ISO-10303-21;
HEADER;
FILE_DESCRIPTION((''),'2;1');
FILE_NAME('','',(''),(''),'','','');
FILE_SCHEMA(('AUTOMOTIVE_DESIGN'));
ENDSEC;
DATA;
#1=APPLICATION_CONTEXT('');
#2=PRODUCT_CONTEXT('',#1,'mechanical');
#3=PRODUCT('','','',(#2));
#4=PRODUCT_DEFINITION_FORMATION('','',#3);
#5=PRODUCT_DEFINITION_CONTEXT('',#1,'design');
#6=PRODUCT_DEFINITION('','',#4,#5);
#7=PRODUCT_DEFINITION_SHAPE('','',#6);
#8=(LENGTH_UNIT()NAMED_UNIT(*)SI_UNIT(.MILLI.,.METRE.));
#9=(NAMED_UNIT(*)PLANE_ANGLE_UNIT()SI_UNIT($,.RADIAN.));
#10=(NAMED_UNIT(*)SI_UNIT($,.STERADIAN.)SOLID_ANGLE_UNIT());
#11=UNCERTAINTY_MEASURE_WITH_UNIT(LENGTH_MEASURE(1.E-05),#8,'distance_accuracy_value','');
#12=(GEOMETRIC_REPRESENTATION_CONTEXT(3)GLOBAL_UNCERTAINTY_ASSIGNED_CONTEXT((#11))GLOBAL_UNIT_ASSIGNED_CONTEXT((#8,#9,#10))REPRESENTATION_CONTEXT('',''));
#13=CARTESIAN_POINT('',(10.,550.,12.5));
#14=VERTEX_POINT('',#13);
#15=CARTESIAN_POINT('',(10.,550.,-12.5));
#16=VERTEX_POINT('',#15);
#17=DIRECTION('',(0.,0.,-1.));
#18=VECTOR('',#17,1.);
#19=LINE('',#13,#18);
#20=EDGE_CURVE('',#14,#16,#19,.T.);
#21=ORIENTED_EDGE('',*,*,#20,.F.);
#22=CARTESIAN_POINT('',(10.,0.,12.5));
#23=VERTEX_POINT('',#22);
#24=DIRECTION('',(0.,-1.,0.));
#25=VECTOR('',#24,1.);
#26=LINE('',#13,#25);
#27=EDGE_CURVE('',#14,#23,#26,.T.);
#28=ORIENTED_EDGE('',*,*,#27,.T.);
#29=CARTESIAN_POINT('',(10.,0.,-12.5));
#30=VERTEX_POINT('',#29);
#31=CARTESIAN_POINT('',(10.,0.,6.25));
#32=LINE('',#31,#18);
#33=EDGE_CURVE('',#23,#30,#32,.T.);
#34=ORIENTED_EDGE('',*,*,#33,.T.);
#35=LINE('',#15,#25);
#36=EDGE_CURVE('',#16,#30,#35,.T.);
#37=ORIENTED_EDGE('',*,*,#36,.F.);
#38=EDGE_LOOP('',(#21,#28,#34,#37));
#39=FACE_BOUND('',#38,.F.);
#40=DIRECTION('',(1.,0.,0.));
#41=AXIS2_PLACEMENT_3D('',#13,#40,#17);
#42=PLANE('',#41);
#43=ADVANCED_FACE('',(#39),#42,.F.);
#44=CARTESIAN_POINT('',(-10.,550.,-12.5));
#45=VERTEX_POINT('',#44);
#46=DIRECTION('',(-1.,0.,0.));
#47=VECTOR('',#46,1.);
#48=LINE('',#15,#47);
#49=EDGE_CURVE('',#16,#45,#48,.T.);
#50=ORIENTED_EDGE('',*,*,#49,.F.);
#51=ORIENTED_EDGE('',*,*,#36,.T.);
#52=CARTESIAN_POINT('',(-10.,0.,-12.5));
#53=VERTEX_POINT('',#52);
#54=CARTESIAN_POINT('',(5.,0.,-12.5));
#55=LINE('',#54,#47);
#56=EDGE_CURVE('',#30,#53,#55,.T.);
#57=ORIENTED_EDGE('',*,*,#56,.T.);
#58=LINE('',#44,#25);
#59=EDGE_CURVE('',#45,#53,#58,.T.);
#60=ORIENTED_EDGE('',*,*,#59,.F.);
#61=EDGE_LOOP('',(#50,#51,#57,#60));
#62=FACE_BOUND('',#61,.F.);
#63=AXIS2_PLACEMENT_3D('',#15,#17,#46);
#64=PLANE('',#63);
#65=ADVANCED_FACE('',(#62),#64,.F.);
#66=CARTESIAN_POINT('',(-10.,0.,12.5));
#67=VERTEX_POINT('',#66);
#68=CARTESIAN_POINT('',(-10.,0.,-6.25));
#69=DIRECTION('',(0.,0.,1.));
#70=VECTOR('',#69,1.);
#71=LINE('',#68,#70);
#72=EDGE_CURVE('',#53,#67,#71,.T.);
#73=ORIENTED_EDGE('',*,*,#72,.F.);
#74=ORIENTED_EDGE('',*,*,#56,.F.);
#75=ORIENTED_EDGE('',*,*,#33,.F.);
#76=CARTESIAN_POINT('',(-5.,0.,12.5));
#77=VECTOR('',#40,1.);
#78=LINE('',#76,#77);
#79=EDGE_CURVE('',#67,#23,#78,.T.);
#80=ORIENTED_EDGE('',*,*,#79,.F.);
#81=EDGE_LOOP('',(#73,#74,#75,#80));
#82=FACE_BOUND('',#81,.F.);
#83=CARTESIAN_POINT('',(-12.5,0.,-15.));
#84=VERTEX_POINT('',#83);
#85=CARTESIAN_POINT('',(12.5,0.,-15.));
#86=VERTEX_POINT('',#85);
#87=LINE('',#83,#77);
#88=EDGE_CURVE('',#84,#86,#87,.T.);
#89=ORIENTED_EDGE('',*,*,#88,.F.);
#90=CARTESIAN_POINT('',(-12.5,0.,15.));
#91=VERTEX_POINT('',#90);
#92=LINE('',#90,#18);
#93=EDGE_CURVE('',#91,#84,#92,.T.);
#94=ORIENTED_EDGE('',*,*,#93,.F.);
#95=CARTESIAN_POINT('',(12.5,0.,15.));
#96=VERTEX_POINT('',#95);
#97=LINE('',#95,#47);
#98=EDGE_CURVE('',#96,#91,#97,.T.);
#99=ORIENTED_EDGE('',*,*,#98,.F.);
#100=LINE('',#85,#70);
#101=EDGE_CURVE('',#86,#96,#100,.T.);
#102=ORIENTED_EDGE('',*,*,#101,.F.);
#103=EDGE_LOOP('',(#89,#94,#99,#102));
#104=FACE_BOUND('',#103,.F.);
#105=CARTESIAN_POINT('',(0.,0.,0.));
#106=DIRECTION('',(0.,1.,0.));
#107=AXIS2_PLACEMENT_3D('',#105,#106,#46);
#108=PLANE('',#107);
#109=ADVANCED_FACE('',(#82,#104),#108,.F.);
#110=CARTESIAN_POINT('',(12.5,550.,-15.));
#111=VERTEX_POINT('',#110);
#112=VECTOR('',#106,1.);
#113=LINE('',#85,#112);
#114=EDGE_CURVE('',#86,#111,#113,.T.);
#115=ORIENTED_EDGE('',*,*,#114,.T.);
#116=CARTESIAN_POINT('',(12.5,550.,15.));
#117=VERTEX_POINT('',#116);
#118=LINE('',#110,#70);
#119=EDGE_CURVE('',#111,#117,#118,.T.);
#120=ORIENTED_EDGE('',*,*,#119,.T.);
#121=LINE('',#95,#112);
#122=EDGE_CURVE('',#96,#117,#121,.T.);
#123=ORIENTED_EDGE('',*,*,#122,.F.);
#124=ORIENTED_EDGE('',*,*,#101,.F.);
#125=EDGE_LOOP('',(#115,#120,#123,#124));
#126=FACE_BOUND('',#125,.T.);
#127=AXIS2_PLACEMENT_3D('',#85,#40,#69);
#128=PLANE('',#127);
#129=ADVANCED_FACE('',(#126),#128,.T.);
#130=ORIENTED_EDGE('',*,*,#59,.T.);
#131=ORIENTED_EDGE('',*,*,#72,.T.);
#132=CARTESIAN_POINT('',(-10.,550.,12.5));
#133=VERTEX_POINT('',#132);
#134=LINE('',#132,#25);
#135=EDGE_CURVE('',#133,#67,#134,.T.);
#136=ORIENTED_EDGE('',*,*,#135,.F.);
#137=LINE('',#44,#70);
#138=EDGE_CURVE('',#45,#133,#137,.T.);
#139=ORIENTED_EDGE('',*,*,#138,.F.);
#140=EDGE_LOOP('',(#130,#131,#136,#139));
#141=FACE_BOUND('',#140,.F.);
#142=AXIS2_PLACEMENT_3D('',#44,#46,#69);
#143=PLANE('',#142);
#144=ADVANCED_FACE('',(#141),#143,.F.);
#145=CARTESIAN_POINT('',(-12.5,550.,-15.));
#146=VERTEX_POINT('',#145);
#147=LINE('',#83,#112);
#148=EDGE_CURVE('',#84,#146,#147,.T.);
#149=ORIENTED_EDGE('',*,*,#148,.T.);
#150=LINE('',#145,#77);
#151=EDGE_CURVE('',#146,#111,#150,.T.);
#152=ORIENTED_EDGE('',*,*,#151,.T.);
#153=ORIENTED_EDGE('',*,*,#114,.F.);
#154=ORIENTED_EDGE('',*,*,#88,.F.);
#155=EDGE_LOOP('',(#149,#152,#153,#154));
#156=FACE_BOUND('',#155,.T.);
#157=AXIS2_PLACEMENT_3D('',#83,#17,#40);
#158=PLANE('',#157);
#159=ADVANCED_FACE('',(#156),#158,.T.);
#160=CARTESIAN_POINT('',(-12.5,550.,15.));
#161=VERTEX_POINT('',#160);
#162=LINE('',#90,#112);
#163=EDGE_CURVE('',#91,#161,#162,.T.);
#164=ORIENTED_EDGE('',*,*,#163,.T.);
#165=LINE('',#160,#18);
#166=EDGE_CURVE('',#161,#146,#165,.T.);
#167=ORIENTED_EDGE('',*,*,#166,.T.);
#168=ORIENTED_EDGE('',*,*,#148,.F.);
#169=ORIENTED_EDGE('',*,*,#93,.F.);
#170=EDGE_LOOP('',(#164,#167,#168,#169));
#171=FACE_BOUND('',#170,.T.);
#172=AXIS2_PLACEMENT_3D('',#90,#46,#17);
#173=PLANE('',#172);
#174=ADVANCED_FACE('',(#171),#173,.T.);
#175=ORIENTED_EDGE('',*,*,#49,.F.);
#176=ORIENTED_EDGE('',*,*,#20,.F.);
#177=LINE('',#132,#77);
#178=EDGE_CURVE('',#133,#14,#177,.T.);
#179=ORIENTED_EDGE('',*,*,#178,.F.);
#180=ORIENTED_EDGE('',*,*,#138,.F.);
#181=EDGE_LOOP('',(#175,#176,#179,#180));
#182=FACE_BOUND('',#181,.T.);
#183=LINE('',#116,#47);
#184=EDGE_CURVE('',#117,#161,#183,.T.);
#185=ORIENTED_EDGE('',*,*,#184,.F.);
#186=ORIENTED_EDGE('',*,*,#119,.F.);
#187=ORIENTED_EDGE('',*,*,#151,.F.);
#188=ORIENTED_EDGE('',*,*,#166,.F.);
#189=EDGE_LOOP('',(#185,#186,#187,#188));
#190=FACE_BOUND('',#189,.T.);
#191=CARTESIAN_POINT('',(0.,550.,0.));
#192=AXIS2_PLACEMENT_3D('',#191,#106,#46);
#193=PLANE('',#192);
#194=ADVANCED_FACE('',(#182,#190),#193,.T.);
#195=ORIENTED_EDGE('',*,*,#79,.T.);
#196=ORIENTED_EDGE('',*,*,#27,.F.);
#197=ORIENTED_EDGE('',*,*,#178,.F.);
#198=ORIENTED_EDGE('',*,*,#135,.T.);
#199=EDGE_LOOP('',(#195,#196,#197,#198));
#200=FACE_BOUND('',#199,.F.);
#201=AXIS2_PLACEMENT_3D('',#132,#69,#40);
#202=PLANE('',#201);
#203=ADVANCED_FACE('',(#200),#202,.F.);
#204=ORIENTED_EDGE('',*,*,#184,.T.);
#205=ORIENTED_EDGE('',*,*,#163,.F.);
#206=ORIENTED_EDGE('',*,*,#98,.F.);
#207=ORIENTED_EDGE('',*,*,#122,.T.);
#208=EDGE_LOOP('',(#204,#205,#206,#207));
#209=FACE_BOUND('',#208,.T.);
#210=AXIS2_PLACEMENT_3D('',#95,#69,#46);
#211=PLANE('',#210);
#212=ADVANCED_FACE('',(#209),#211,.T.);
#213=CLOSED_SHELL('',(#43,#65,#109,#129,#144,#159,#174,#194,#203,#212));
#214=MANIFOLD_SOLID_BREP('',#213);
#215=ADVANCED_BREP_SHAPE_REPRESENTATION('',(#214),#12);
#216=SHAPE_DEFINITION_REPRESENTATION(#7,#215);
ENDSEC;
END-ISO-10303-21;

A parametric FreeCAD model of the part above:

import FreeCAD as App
import Part
import Sketcher
from FreeCAD import Vector

doc = App.newDocument("Part")
body = doc.addObject("PartDesign::Body", "Body")

sketch1 = doc.addObject("Sketcher::SketchObject", "Sketch")
body.addObject(sketch1)
sketch1.AttachmentSupport = (doc.XZ_Plane, [""])
sketch1.MapMode = "FlatFace"
sketch1.addGeometry([
    Part.LineSegment(Vector(-12.5, 15, 0), Vector(12.5, 15, 0)),
    Part.LineSegment(Vector(12.5, 15, 0), Vector(12.5, -15, 0)),
    Part.LineSegment(Vector(12.5, -15, 0), Vector(-12.5, -15, 0)),
    Part.LineSegment(Vector(-12.5, -15, 0), Vector(-12.5, 15, 0)),
], False)
sketch1.addConstraint([
    Sketcher.Constraint("Coincident", 0, 2, 1, 1),
    Sketcher.Constraint("Coincident", 1, 2, 2, 1),
    Sketcher.Constraint("Coincident", 2, 2, 3, 1),
    Sketcher.Constraint("Coincident", 3, 2, 0, 1),
    Sketcher.Constraint("Horizontal", 0),
    Sketcher.Constraint("Vertical", 1),
    Sketcher.Constraint("Horizontal", 2),
    Sketcher.Constraint("Vertical", 3),
    Sketcher.Constraint("Symmetric", 0, 2, 2, 2, -1, 1),
    Sketcher.Constraint("DistanceX", 0, 1, 0, 2, 25.0),
    Sketcher.Constraint("DistanceY", 1, 2, 1, 1, 30.0),
])
pad1 = doc.addObject("PartDesign::Pad", "Pad")
body.addObject(pad1)
pad1.Profile = sketch1
pad1.Length = 550
pad1.Reversed = True

sketch2 = doc.addObject("Sketcher::SketchObject", "Sketch001")
body.addObject(sketch2)
sketch2.AttachmentSupport = (doc.XZ_Plane, [""])
sketch2.MapMode = "FlatFace"
sketch2.AttachmentOffset = App.Placement(Vector(0, 0, -550), App.Rotation())
sketch2.addGeometry([
    Part.LineSegment(Vector(-10, -12.5, 0), Vector(-10, 12.5, 0)),
    Part.LineSegment(Vector(-10, 12.5, 0), Vector(10, 12.5, 0)),
    Part.LineSegment(Vector(10, 12.5, 0), Vector(10, -12.5, 0)),
    Part.LineSegment(Vector(10, -12.5, 0), Vector(-10, -12.5, 0)),
], False)
sketch2.addConstraint([
    Sketcher.Constraint("Coincident", 0, 2, 1, 1),
    Sketcher.Constraint("Coincident", 1, 2, 2, 1),
    Sketcher.Constraint("Coincident", 2, 2, 3, 1),
    Sketcher.Constraint("Coincident", 3, 2, 0, 1),
    Sketcher.Constraint("Vertical", 0),
    Sketcher.Constraint("Horizontal", 1),
    Sketcher.Constraint("Vertical", 2),
    Sketcher.Constraint("Horizontal", 3),
    Sketcher.Constraint("Symmetric", 0, 2, 2, 2, -1, 1),
    Sketcher.Constraint("DistanceX", 1, 1, 1, 2, 20.0),
    Sketcher.Constraint("DistanceY", 0, 1, 0, 2, 25.0),
])
pocket1 = doc.addObject("PartDesign::Pocket", "Pocket")
body.addObject(pocket1)
pocket1.Profile = sketch2
pocket1.Length = 600
pocket1.Reversed = True

doc.recompute()
